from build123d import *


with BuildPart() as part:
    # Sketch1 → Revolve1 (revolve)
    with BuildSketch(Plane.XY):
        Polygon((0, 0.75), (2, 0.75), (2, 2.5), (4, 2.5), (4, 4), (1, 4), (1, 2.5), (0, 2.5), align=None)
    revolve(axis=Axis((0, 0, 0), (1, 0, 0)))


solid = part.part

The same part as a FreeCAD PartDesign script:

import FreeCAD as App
import Part
import Sketcher
from FreeCAD import Vector


def add_polygon(sketch, points):
    """Adds a closed chain of lines whose ends are joined by coincident constraints."""
    first, n = sketch.GeometryCount, len(points)
    for a, b in zip(points, points[1:] + points[:1]):
        sketch.addGeometry(Part.LineSegment(App.Vector(*a, 0), App.Vector(*b, 0)), False)
    for i in range(n):
        sketch.addConstraint(Sketcher.Constraint("Coincident", first + i, 2, first + (i + 1) % n, 1))

doc = App.newDocument("Part")
body = doc.addObject("PartDesign::Body", "Body")

# Sketch on XY plane
sketch1 = body.newObject("Sketcher::SketchObject", "Sketch")
sketch1.AttachmentSupport = (doc.getObject("XY_Plane"), [""])
sketch1.MapMode = "FlatFace"
add_polygon(sketch1, [(0, 0.8), (2, 0.8), (2, 2.5), (4, 2.5), (4, 4), (1, 4), (1, 2.5), (0, 2.5)])  # lines 0-7
sketch1.addConstraint(Sketcher.Constraint("Horizontal", 0))
sketch1.addConstraint(Sketcher.Constraint("Vertical", 1))
sketch1.addConstraint(Sketcher.Constraint("Horizontal", 2))
sketch1.addConstraint(Sketcher.Constraint("Vertical", 3))
sketch1.addConstraint(Sketcher.Constraint("Horizontal", 4))
sketch1.addConstraint(Sketcher.Constraint("Vertical", 5))
sketch1.addConstraint(Sketcher.Constraint("Horizontal", 6))
sketch1.addConstraint(Sketcher.Constraint("Vertical", 7))
sketch1.addConstraint(Sketcher.Constraint("PointOnObject", 6, 2, -2))
sketch1.addConstraint(Sketcher.Constraint("Horizontal", 2, 2, 5, 2))
sketch1.addConstraint(Sketcher.Constraint("Equal", 0, 2))
sketch1.addConstraint(Sketcher.Constraint("DistanceX", 0, 1, 0, 2, 2.0))
sketch1.addConstraint(Sketcher.Constraint("DistanceX", 4, 2, 4, 1, 3.0))
sketch1.addConstraint(Sketcher.Constraint("DistanceY", 3, 1, 3, 2, 1.5))
sketch1.addConstraint(Sketcher.Constraint("DistanceY", -1, 1, 3, 2, 4.0))
sketch1.addConstraint(Sketcher.Constraint("DistanceY", 1, 1, 1, 2, 1.75))
revolution = body.newObject("PartDesign::Revolution", "Revolution")
revolution.Profile = sketch1
revolution.ReferenceAxis = (sketch1, ["H_Axis"])
revolution.Angle = 360

doc.recompute()
